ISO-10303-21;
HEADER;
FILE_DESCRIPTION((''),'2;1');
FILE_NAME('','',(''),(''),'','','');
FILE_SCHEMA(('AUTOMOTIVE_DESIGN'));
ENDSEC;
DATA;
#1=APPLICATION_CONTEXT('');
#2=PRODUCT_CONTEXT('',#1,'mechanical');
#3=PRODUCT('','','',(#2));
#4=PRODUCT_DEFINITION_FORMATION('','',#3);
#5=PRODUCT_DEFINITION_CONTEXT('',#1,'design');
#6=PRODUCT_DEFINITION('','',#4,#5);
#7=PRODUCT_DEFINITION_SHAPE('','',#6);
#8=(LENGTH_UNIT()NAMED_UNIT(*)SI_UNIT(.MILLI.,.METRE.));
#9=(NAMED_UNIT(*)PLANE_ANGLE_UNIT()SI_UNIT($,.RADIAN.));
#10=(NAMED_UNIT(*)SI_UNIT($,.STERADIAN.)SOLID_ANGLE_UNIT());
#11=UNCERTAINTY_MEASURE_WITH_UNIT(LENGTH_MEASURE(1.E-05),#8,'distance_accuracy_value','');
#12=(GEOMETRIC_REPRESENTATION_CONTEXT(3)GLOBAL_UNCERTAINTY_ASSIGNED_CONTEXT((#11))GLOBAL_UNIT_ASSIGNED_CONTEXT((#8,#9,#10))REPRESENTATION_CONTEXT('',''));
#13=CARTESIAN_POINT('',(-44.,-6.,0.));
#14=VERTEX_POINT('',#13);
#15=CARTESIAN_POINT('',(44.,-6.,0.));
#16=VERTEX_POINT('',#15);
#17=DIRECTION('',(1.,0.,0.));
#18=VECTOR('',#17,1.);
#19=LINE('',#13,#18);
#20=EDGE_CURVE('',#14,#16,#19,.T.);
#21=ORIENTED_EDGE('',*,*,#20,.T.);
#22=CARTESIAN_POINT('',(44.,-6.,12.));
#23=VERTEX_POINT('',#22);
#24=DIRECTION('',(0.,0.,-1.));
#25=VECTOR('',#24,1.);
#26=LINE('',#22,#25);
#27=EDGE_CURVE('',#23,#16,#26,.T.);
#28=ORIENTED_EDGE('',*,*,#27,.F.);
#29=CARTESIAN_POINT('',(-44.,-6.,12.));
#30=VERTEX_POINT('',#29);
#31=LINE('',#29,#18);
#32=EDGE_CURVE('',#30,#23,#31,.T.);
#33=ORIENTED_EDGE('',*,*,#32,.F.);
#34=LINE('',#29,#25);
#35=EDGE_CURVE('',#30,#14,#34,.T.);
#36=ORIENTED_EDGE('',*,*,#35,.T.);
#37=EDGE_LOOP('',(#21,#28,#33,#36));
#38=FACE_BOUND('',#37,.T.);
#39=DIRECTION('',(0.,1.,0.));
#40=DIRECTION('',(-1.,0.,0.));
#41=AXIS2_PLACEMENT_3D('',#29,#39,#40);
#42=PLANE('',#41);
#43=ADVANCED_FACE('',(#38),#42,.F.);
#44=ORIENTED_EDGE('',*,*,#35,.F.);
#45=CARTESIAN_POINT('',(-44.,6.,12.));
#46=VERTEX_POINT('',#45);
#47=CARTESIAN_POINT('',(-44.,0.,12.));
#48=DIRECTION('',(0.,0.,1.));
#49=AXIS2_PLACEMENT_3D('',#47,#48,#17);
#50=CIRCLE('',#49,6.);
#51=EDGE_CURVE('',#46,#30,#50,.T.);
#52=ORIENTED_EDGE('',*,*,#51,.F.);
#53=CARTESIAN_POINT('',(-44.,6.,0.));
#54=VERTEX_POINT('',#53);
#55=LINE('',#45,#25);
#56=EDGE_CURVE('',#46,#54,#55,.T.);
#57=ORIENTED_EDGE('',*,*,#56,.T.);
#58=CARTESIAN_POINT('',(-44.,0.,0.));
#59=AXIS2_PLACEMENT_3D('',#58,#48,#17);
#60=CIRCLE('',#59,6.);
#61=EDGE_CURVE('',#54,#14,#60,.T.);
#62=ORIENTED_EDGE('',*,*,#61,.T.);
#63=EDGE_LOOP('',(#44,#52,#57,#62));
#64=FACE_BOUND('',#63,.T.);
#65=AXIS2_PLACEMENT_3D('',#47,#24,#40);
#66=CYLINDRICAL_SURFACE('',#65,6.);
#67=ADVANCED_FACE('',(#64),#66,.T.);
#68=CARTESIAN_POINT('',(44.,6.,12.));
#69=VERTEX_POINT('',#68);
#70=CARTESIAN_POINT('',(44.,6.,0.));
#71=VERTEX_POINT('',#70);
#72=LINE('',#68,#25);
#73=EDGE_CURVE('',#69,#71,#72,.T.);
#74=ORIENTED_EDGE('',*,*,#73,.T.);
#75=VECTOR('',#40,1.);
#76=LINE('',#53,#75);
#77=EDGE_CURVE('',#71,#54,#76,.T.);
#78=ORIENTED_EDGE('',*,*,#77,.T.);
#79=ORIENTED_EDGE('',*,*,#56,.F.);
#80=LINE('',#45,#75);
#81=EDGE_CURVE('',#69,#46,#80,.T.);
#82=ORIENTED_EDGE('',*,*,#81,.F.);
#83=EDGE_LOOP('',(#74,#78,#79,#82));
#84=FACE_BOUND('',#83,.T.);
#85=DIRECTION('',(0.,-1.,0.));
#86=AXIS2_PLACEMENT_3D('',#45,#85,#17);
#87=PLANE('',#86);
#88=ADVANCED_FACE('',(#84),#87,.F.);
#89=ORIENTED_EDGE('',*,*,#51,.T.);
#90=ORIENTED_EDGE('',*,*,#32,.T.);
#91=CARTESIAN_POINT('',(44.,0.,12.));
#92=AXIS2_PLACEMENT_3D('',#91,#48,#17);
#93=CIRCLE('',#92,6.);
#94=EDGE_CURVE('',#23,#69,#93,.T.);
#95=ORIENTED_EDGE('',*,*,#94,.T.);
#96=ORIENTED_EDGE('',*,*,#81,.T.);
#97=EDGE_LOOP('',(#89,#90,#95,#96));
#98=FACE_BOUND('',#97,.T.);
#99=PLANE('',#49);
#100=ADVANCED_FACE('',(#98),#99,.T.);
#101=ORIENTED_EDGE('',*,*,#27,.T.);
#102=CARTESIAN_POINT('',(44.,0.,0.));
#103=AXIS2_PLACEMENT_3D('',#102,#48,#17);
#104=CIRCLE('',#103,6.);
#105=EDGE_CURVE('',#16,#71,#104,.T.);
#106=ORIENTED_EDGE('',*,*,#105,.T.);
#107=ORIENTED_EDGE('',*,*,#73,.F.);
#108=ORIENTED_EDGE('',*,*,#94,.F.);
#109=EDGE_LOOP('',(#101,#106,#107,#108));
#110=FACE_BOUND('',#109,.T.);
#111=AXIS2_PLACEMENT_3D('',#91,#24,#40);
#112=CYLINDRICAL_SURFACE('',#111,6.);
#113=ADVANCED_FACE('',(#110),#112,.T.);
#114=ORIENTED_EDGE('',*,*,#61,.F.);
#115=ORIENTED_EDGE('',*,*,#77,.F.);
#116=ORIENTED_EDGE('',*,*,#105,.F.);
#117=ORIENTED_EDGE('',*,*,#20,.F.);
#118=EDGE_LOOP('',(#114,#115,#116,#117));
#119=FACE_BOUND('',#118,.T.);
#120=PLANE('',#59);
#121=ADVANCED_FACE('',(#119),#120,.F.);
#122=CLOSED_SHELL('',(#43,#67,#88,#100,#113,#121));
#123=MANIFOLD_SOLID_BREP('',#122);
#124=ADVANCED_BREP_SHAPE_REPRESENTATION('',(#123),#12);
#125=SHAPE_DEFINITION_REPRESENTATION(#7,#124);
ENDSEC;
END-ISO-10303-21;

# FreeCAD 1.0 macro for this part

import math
import FreeCAD as App
import Part
import Sketcher

doc = App.newDocument("Part")
body = doc.addObject("PartDesign::Body", "Body")

# Sketch on XY plane
sketch1 = body.newObject("Sketcher::SketchObject", "Sketch")
sketch1.AttachmentSupport = (doc.getObject("XY_Plane"), [""])
sketch1.MapMode = "FlatFace"
sketch1.addGeometry([
    Part.LineSegment(App.Vector(44, 6, 0), App.Vector(-44, 6, 0)),
    Part.ArcOfCircle(Part.Circle(App.Vector(-44, 0, 0), App.Vector(0, 0, 1), 6), math.radians(90), math.radians(270)),
    Part.LineSegment(App.Vector(-44, -6, 0), App.Vector(44, -6, 0)),
    Part.ArcOfCircle(Part.Circle(App.Vector(44, 0, 0), App.Vector(0, 0, 1), 6), math.radians(-90), math.radians(90)),
], False)
sketch1.addConstraint([
    Sketcher.Constraint("Tangent", 0, 2, 1, 1),
    Sketcher.Constraint("Tangent", 1, 2, 2, 1),
    Sketcher.Constraint("Tangent", 2, 2, 3, 1),
    Sketcher.Constraint("Tangent", 3, 2, 0, 1),
    Sketcher.Constraint("Horizontal", 0),
    Sketcher.Constraint("Horizontal", 2),
    Sketcher.Constraint("Symmetric", 1, 3, 3, 3, -1, 1),
    Sketcher.Constraint("Radius", 1, 6.0),
    Sketcher.Constraint("DistanceX", 0, 2, 0, 1, 88.0),
])
pad1 = body.newObject("PartDesign::Pad", "Pad")
pad1.Profile = sketch1
pad1.Length = 12

doc.recompute()
